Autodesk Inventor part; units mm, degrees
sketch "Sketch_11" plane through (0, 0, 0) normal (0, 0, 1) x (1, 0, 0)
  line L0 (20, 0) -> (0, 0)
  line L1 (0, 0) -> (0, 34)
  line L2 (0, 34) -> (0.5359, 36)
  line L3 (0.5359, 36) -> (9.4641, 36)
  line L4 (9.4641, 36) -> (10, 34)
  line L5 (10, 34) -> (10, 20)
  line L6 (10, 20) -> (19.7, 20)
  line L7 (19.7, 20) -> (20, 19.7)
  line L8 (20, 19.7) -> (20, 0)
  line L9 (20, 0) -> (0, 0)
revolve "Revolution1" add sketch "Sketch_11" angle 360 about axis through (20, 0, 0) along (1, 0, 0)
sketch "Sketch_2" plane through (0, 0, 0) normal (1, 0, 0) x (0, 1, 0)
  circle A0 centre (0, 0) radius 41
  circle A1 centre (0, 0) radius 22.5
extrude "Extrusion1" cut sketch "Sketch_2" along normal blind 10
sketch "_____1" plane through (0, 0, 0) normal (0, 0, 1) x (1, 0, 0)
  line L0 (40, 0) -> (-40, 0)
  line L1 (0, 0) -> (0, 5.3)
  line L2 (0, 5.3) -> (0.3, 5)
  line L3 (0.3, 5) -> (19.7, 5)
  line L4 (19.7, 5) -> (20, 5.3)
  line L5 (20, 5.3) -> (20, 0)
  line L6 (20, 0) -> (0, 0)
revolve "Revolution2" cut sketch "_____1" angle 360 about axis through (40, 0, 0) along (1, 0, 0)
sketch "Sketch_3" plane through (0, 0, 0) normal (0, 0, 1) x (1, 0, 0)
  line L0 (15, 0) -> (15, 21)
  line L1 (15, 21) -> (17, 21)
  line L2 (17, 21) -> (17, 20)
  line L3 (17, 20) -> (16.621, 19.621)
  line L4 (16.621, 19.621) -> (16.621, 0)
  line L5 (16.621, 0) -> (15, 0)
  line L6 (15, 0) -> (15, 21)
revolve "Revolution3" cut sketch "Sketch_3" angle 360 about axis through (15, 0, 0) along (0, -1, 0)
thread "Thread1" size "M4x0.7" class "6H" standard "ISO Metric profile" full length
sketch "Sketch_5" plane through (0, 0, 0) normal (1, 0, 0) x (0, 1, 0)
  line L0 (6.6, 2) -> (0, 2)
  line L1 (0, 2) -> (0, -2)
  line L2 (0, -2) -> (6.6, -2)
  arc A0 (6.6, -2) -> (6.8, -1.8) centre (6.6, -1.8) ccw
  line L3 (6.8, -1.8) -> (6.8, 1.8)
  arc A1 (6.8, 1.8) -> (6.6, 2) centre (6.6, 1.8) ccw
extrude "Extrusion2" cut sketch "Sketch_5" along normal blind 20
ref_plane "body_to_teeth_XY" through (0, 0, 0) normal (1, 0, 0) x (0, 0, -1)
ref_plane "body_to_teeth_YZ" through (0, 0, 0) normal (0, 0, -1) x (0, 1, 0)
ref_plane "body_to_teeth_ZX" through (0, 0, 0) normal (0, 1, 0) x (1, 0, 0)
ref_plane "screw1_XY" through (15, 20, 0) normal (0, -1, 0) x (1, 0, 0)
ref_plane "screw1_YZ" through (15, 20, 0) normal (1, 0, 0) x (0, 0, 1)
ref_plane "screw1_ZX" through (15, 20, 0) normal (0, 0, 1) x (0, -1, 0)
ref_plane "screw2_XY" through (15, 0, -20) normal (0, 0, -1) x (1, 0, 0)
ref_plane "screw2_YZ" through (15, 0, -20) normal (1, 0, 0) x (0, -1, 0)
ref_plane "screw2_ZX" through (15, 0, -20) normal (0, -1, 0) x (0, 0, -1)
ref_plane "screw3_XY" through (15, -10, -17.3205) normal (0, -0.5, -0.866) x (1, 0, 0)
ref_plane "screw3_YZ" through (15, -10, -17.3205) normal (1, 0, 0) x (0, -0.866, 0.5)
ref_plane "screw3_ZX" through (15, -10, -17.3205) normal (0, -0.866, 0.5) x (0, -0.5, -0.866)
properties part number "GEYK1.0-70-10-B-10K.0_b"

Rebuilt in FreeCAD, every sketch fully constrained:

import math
import FreeCAD as App
import Part
import Sketcher

V = App.Vector
Q = App.Units.Quantity


def add_polygon(sketch, points):
    """Adds a closed chain of lines whose ends are joined by coincident constraints."""
    first, n = sketch.GeometryCount, len(points)
    for a, b in zip(points, points[1:] + points[:1]):
        sketch.addGeometry(Part.LineSegment(App.Vector(*a, 0), App.Vector(*b, 0)), False)
    for i in range(n):
        sketch.addConstraint(Sketcher.Constraint("Coincident", first + i, 2, first + (i + 1) % n, 1))

doc = App.newDocument("Part")
body = doc.addObject("PartDesign::Body", "Body")

# Sketch on XY plane
sketch1 = body.newObject("Sketcher::SketchObject", "Sketch")
sketch1.AttachmentSupport = (doc.getObject("XY_Plane"), [""])
sketch1.MapMode = "FlatFace"
add_polygon(sketch1, [(0, 0), (20, 0), (20, 19.7), (19.7, 20), (10, 20), (10, 34), (9.4641, 36), (0.5359, 36), (0, 34)])  # lines 0-8
sketch1.addConstraint(Sketcher.Constraint("Horizontal", 0))
sketch1.addConstraint(Sketcher.Constraint("Vertical", 1))
sketch1.addConstraint(Sketcher.Constraint("Horizontal", 3))
sketch1.addConstraint(Sketcher.Constraint("Vertical", 4))
sketch1.addConstraint(Sketcher.Constraint("Horizontal", 6))
sketch1.addConstraint(Sketcher.Constraint("Vertical", 8))
sketch1.addConstraint(Sketcher.Constraint("Coincident", 8, 2, -1, 1))
sketch1.addConstraint(Sketcher.Constraint("Horizontal", 4, 2, 7, 2))
sketch1.addConstraint(Sketcher.Constraint("Equal", 5, 7))
sketch1.addConstraint(Sketcher.Constraint("DistanceX", 0, 1, 0, 2, 20.0))
sketch1.addConstraint(Sketcher.Constraint("DistanceY", 4, 1, 4, 2, 14.0))
sketch1.addConstraint(Sketcher.Constraint("DistanceY", 8, 2, 8, 1, 34.0))
sketch1.addConstraint(Sketcher.Constraint("Angle", 2, Q("135 deg")))
sketch1.addConstraint(Sketcher.Constraint("Angle", 5, Q("105 deg")))
sketch1.addConstraint(Sketcher.Constraint("DistanceX", 3, 2, 3, 1, 9.7))
sketch1.addConstraint(Sketcher.Constraint("DistanceY", 1, 1, 1, 2, 19.7))
sketch1.addConstraint(Sketcher.Constraint("DistanceY", -1, 1, 5, 2, 36.0))
revolution = body.newObject("PartDesign::Revolution", "Revolution")
revolution.Profile = sketch1
revolution.ReferenceAxis = (sketch1, ["H_Axis"])
revolution.Angle = 360

# Sketch on YZ plane
sketch2 = body.newObject("Sketcher::SketchObject", "Sketch001")
sketch2.AttachmentSupport = (doc.getObject("YZ_Plane"), [""])
sketch2.MapMode = "FlatFace"
sketch2.addGeometry(Part.Circle(V(0, 0, 0), V(0, 0, 1), 41), False)
sketch2.addGeometry(Part.Circle(V(0, 0, 0), V(0, 0, 1), 22.5), False)
sketch2.addConstraint(Sketcher.Constraint("Coincident", 0, 3, -1, 1))
sketch2.addConstraint(Sketcher.Constraint("Coincident", 1, 3, -1, 1))
sketch2.addConstraint(Sketcher.Constraint("Diameter", 0, 82.0))
sketch2.addConstraint(Sketcher.Constraint("Diameter", 1, 45.0))
pocket1 = body.newObject("PartDesign::Pocket", "Pocket")
pocket1.Profile = sketch2
pocket1.Length = 10
pocket1.Reversed = True

# Sketch on XY plane
sketch3 = body.newObject("Sketcher::SketchObject", "Sketch002")
sketch3.AttachmentSupport = (doc.getObject("XY_Plane"), [""])
sketch3.MapMode = "FlatFace"
add_polygon(sketch3, [(0, 0), (20, 0), (20, 5.3), (19.7, 5), (0.3, 5), (0, 5.3)])  # lines 0-5
sketch3.addConstraint(Sketcher.Constraint("Horizontal", 0))
sketch3.addConstraint(Sketcher.Constraint("Vertical", 1))
sketch3.addConstraint(Sketcher.Constraint("Horizontal", 3))
sketch3.addConstraint(Sketcher.Constraint("Vertical", 5))
sketch3.addConstraint(Sketcher.Constraint("Coincident", 5, 2, -1, 1))
sketch3.addConstraint(Sketcher.Constraint("Perpendicular", 2, 4))
sketch3.addConstraint(Sketcher.Constraint("Horizontal", 1, 2, 4, 2))
sketch3.addConstraint(Sketcher.Constraint("Equal", 2, 4))
sketch3.addConstraint(Sketcher.Constraint("DistanceX", 0, 1, 0, 2, 20.0))
sketch3.addConstraint(Sketcher.Constraint("DistanceX", 3, 2, 3, 1, 19.4))
sketch3.addConstraint(Sketcher.Constraint("DistanceY", 1, 1, 1, 2, 5.3))
groove = body.newObject("PartDesign::Groove", "Groove")
groove.Profile = sketch3
groove.ReferenceAxis = (sketch3, ["H_Axis"])
groove.Angle = 360

# Sketch on XY plane
sketch4 = body.newObject("Sketcher::SketchObject", "Sketch003")
sketch4.AttachmentSupport = (doc.getObject("XY_Plane"), [""])
sketch4.MapMode = "FlatFace"
add_polygon(sketch4, [(15, 21), (15, 0), (16.621, 0), (16.621, 19.621), (17, 20), (17, 21)])  # lines 0-5
sketch4.addGeometry(Part.LineSegment(V(15, 21, 0), V(15, 0, 0)), True)  # axis
sketch4.addConstraint(Sketcher.Constraint("Vertical", 0))
sketch4.addConstraint(Sketcher.Constraint("Horizontal", 1))
sketch4.addConstraint(Sketcher.Constraint("Vertical", 2))
sketch4.addConstraint(Sketcher.Constraint("Vertical", 4))
sketch4.addConstraint(Sketcher.Constraint("Horizontal", 5))
sketch4.addConstraint(Sketcher.Constraint("Vertical", 6))
sketch4.addConstraint(Sketcher.Constraint("Coincident", 6, 1, 5, 2))
sketch4.addConstraint(Sketcher.Constraint("PointOnObject", 0, 2, -1))
sketch4.addConstraint(Sketcher.Constraint("PointOnObject", 6, 2, -1))
sketch4.addConstraint(Sketcher.Constraint("DistanceX", 5, 2, 5, 1, 2.0))
sketch4.addConstraint(Sketcher.Constraint("DistanceY", 0, 2, 0, 1, 21.0))
sketch4.addConstraint(Sketcher.Constraint("DistanceY", 4, 1, 4, 2, 1.0))
sketch4.addConstraint(Sketcher.Constraint("Angle", 3, Q("45 deg")))
sketch4.addConstraint(Sketcher.Constraint("DistanceX", -1, 1, 0, 2, 15.0))
sketch4.addConstraint(Sketcher.Constraint("DistanceX", 1, 1, 1, 2, 1.621))
groove2 = body.newObject("PartDesign::Groove", "Groove001")
groove2.Profile = sketch4
groove2.ReferenceAxis = (sketch4, ["Axis0"])
groove2.Angle = 360

# Sketch on YZ plane
sketch5 = body.newObject("Sketcher::SketchObject", "Sketch004")
sketch5.AttachmentSupport = (doc.getObject("YZ_Plane"), [""])
sketch5.MapMode = "FlatFace"
sketch5.addGeometry(Part.ArcOfCircle(Part.Circle(V(6.6, 1.8, 0), V(0, 0, 1), 0.2), math.radians(0), math.radians(90)), False)
sketch5.addGeometry(Part.LineSegment(V(6.6, 2, 0), V(0, 2, 0)), False)
sketch5.addGeometry(Part.LineSegment(V(0, 2, 0), V(0, -2, 0)), False)
sketch5.addGeometry(Part.LineSegment(V(0, -2, 0), V(6.6, -2, 0)), False)
sketch5.addGeometry(Part.ArcOfCircle(Part.Circle(V(6.6, -1.8, 0), V(0, 0, 1), 0.2), math.radians(-90), math.radians(0)), False)
sketch5.addGeometry(Part.LineSegment(V(6.8, -1.8, 0), V(6.8, 1.8, 0)), False)
sketch5.addConstraint(Sketcher.Constraint("Tangent", 0, 2, 1, 1))
sketch5.addConstraint(Sketcher.Constraint("Coincident", 1, 2, 2, 1))
sketch5.addConstraint(Sketcher.Constraint("Coincident", 2, 2, 3, 1))
sketch5.addConstraint(Sketcher.Constraint("Tangent", 3, 2, 4, 1))
sketch5.addConstraint(Sketcher.Constraint("Tangent", 4, 2, 5, 1))
sketch5.addConstraint(Sketcher.Constraint("Tangent", 5, 2, 0, 1))
sketch5.addConstraint(Sketcher.Constraint("Horizontal", 1))
sketch5.addConstraint(Sketcher.Constraint("Vertical", 2))
sketch5.addConstraint(Sketcher.Constraint("Horizontal", 3))
sketch5.addConstraint(Sketcher.Constraint("Vertical", 5))
sketch5.addConstraint(Sketcher.Constraint("Equal", 0, 4))
sketch5.addConstraint(Sketcher.Constraint("Symmetric", 1, 2, 2, 2, -1, 1))
sketch5.addConstraint(Sketcher.Constraint("Radius", 0, 0.2))
sketch5.addConstraint(Sketcher.Constraint("DistanceY", 2, 2, 2, 1, 4.0))
sketch5.addConstraint(Sketcher.Constraint("DistanceX", 1, 2, 1, 1, 6.6))
pocket2 = body.newObject("PartDesign::Pocket", "Pocket001")
pocket2.Profile = sketch5
pocket2.Length = 20
pocket2.Reversed = True

doc.recompute()
